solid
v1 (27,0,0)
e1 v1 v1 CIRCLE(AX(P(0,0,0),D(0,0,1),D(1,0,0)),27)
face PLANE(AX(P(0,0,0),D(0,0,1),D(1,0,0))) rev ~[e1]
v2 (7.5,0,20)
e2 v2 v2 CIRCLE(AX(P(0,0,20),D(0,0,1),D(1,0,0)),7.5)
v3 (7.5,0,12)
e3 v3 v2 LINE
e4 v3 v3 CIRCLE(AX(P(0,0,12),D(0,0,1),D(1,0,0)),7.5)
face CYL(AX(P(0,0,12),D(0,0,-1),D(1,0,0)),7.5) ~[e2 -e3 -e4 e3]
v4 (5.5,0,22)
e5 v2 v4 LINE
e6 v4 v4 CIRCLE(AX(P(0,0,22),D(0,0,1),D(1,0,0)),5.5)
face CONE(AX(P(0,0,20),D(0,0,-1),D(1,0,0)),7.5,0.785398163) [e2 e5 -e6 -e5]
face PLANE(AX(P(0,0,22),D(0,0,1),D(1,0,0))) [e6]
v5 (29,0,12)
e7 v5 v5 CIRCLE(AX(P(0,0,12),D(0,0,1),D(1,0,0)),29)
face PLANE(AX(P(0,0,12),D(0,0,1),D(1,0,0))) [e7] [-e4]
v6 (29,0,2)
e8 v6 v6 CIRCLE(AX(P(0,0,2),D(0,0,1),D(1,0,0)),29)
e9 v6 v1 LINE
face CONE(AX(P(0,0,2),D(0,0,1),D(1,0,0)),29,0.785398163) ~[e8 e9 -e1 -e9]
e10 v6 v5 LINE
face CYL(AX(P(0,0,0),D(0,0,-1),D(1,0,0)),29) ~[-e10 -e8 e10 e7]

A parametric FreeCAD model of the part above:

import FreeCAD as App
import Part
import Sketcher

V = App.Vector


def edges_at(feature, points):
    """Names of the edges that pass closest to the given points."""
    edges = feature.Shape.Edges
    near = lambda p: min(range(len(edges)), key=lambda i: edges[i].distToShape(Part.Vertex(*p))[0])
    return sorted({f"Edge{near(p) + 1}" for p in points})

doc = App.newDocument("Part")
params = doc.addObject("Spreadsheet::Sheet", "Params")
for row, (alias, value) in enumerate([
    ("sketch1_diameter", "58 mm"),
    ("pad1_length", "12 mm"),
    ("sketch2_diameter", "15 mm"),
    ("pad2_length", "10 mm"),
    ("chamfer_size", "2 mm"),
    ("chamfer2_size", "2 mm"),
], start=1):
    params.set(f"A{row}", alias)
    params.set(f"B{row}", "=" + value)
    params.setAlias(f"B{row}", alias)

body = doc.addObject("PartDesign::Body", "Body")

# Sketch on XY plane
sketch1 = body.newObject("Sketcher::SketchObject", "Sketch")
sketch1.AttachmentSupport = (doc.getObject("XY_Plane"), [""])
sketch1.MapMode = "FlatFace"
sketch1.addGeometry(Part.Circle(V(0, 0, 0), V(0, 0, 1), 29), False)
sketch1.addConstraint([
    Sketcher.Constraint("Coincident", 0, 3, -1, 1),
    Sketcher.Constraint("Diameter", 0, 58.0),
])
sketch1.setExpression("Constraints[1]", "Params.sketch1_diameter")
pad1 = body.newObject("PartDesign::Pad", "Pad")
pad1.Profile = sketch1
pad1.setExpression("Length", "Params.pad1_length")

# Sketch on XY plane
sketch2 = body.newObject("Sketcher::SketchObject", "Sketch001")
sketch2.AttachmentSupport = (doc.getObject("XY_Plane"), [""])
sketch2.MapMode = "FlatFace"
sketch2.AttachmentOffset = App.Placement(V(0, 0, 12), App.Rotation())
sketch2.addGeometry(Part.Circle(V(0, 0, 0), V(0, 0, 1), 8), False)
sketch2.addConstraint([
    Sketcher.Constraint("Coincident", 0, 3, -1, 1),
    Sketcher.Constraint("Diameter", 0, 15.0),
])
sketch2.setExpression("Constraints[1]", "Params.sketch2_diameter")
pad2 = body.newObject("PartDesign::Pad", "Pad001")
pad2.Profile = sketch2
pad2.setExpression("Length", "Params.pad2_length")
doc.recompute()

chamfer = body.newObject("PartDesign::Chamfer", "Chamfer")
chamfer.Base = (pad2, edges_at(pad2, [(-7.5, 0, 22)]))
chamfer.setExpression("Size", "Params.chamfer_size")
doc.recompute()

chamfer2 = body.newObject("PartDesign::Chamfer", "Chamfer001")
chamfer2.Base = (chamfer, edges_at(chamfer, [(-29, 0, 0)]))
chamfer2.setExpression("Size", "Params.chamfer2_size")

doc.recompute()
